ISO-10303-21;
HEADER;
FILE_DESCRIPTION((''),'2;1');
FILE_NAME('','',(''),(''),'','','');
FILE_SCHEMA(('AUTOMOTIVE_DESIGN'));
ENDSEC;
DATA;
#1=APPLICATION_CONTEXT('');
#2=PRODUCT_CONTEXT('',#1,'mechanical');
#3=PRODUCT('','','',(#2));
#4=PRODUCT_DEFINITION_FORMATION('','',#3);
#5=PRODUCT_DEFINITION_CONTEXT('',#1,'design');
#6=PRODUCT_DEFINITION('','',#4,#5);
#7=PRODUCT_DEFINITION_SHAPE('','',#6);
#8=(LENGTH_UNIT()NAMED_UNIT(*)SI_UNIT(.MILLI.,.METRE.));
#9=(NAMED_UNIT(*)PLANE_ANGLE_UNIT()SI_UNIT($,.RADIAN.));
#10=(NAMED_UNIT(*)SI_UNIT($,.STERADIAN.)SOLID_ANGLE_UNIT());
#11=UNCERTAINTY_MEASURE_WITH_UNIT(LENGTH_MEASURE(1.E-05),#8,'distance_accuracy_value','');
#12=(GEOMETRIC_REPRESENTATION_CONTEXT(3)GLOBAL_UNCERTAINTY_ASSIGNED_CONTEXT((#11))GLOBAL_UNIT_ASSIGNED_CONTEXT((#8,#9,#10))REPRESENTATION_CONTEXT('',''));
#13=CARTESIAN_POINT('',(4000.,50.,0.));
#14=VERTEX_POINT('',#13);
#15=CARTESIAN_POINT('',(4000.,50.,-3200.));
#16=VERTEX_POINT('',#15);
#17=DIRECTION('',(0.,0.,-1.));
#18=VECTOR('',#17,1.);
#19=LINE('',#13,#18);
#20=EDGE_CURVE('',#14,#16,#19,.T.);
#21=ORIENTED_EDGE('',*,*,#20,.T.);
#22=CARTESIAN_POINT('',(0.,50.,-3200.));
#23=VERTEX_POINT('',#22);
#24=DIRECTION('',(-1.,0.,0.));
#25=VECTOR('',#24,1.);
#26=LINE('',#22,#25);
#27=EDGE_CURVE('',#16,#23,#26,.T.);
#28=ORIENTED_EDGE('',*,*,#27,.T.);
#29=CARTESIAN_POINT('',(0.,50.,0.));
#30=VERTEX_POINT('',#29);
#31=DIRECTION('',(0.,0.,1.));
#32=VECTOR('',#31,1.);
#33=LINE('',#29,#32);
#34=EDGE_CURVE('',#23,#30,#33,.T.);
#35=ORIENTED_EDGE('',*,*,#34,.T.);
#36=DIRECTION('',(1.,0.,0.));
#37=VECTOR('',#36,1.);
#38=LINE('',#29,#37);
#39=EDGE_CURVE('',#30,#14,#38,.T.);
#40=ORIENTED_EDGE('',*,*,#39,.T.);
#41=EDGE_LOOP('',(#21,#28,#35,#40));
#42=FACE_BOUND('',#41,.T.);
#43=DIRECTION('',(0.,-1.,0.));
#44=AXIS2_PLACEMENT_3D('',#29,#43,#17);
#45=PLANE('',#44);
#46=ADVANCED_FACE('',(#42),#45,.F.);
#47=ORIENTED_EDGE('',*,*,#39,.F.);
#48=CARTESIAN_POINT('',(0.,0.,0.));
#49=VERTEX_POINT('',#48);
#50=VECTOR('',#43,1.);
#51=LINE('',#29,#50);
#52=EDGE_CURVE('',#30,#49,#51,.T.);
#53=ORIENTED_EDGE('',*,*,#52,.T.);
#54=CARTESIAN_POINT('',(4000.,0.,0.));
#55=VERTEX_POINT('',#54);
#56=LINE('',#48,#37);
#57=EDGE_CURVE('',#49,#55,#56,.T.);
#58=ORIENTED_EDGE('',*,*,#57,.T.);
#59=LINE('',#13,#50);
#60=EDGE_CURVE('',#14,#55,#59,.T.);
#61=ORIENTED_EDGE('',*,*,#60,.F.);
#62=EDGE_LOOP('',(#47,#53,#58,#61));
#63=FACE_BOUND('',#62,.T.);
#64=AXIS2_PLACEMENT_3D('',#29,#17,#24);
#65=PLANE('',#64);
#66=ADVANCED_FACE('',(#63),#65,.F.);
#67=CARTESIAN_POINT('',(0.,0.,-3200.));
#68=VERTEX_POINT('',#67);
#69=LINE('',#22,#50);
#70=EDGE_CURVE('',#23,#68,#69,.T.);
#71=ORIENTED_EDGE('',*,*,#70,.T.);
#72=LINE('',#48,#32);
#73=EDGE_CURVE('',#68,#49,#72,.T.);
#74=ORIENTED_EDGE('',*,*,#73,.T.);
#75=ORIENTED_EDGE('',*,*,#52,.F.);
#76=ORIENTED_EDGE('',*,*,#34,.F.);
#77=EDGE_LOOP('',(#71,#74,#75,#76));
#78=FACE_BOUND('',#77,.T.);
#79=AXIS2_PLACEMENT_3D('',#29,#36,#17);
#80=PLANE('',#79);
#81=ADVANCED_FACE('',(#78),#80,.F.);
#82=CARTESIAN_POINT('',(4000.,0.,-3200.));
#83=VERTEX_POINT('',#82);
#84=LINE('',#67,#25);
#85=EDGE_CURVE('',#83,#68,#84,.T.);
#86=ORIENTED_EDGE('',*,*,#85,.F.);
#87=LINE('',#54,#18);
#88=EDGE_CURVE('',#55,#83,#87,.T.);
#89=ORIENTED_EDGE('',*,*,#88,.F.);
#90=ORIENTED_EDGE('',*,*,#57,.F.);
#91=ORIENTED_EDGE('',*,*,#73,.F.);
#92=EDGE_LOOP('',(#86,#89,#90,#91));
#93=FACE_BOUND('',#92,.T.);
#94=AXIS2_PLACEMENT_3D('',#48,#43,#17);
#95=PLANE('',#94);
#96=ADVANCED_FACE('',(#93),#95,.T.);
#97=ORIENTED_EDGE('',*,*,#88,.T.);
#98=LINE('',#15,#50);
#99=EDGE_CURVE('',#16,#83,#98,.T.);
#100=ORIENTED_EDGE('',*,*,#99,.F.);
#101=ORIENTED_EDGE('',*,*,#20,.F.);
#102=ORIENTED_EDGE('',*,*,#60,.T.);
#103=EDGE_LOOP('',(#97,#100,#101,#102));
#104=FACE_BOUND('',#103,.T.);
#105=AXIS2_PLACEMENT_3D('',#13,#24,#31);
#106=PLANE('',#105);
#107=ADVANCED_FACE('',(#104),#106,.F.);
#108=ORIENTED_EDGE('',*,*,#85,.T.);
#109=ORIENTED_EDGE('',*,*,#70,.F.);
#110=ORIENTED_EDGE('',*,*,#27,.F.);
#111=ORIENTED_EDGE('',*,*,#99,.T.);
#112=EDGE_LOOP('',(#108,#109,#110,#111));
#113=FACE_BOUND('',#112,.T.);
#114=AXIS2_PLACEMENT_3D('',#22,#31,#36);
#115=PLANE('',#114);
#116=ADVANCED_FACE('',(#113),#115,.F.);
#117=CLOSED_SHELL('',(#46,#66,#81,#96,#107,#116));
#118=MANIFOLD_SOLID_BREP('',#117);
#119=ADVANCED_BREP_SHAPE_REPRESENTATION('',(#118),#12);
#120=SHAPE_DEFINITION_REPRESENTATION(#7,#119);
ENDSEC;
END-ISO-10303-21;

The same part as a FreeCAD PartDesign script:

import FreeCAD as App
import Part
import Sketcher
from FreeCAD import Vector
Q = App.Units.Quantity


def add_polygon(sketch, points):
    """Adds a closed chain of lines whose ends are joined by coincident constraints."""
    first, n = sketch.GeometryCount, len(points)
    for a, b in zip(points, points[1:] + points[:1]):
        sketch.addGeometry(Part.LineSegment(App.Vector(*a, 0), App.Vector(*b, 0)), False)
    for i in range(n):
        sketch.addConstraint(Sketcher.Constraint("Coincident", first + i, 2, first + (i + 1) % n, 1))

doc = App.newDocument("Part")
body = doc.addObject("PartDesign::Body", "Body")

# Sketch on XZ plane
sketch1 = body.newObject("Sketcher::SketchObject", "Sketch")
sketch1.AttachmentSupport = (doc.getObject("XZ_Plane"), [""])
sketch1.MapMode = "FlatFace"
add_polygon(sketch1, [(0, -3200), (0, 0), (4000, 0), (4000, -3200)])  # lines 0-3
sketch1.addConstraint([
    Sketcher.Constraint("Vertical", 0),
    Sketcher.Constraint("Horizontal", 1),
    Sketcher.Constraint("Vertical", 2),
    Sketcher.Constraint("Horizontal", 3),
    Sketcher.Constraint("Coincident", 0, 2, -1, 1),
    Sketcher.Constraint("DistanceX", 1, 1, 1, 2, Q("4000 mm")),
    Sketcher.Constraint("DistanceY", 0, 1, 0, 2, Q("3200 mm")),
])
pad1 = body.newObject("PartDesign::Pad", "Pad")
pad1.Profile = sketch1
pad1.Length = 50
pad1.Reversed = True

doc.recompute()
